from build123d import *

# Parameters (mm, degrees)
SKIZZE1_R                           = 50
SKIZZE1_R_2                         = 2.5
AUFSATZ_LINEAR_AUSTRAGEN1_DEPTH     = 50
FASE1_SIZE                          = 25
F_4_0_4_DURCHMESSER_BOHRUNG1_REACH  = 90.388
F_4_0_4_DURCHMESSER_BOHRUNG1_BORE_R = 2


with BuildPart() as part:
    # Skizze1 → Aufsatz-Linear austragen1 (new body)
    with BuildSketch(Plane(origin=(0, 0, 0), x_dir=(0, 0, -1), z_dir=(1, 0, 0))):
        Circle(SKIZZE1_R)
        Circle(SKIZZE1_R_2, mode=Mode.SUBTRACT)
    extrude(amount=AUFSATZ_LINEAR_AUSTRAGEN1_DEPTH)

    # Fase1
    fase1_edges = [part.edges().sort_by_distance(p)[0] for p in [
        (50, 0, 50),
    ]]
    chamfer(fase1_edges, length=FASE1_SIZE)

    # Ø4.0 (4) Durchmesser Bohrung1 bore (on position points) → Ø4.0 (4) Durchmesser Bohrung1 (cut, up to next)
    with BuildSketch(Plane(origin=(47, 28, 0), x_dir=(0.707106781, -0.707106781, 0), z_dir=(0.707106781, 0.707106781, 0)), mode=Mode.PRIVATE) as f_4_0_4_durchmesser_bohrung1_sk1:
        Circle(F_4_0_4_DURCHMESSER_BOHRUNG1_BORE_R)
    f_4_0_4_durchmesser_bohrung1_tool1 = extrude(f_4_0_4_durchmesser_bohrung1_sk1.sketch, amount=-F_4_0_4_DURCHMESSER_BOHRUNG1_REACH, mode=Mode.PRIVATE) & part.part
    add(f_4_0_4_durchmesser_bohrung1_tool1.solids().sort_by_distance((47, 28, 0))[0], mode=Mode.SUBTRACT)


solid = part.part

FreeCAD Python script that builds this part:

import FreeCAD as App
import Part
import Sketcher

V = App.Vector


def edges_at(feature, points):
    """Names of the edges that pass closest to the given points."""
    edges = feature.Shape.Edges
    near = lambda p: min(range(len(edges)), key=lambda i: edges[i].distToShape(Part.Vertex(*p))[0])
    return sorted({f"Edge{near(p) + 1}" for p in points})

doc = App.newDocument("Part")
params = doc.addObject("Spreadsheet::Sheet", "Params")
for row, (alias, value) in enumerate([
    ("sketch1_diameter", "100 mm"),
    ("sketch1_diameter2", "5 mm"),
    ("pad1_length", "50 mm"),
    ("chamfer_size", "25 mm"),
    ("sketch2_diameter", "4 mm"),
], start=1):
    params.set(f"A{row}", alias)
    params.set(f"B{row}", "=" + value)
    params.setAlias(f"B{row}", alias)

body = doc.addObject("PartDesign::Body", "Body")

sketch1 = body.newObject("Sketcher::SketchObject", "Sketch")
sketch1.AttachmentSupport = (doc.getObject("YZ_Plane"), [""])
sketch1.MapMode = "FlatFace"
sketch1.addGeometry(Part.Circle(V(0, 0, 0), V(0, 0, 1), 50), False)
sketch1.addGeometry(Part.Circle(V(0, 0, 0), V(0, 0, 1), 2.5), False)
sketch1.addConstraint(Sketcher.Constraint("Coincident", 0, 3, -1, 1))
sketch1.addConstraint(Sketcher.Constraint("Coincident", 1, 3, -1, 1))
sketch1.addConstraint(Sketcher.Constraint("Diameter", 0, 100.0))
sketch1.addConstraint(Sketcher.Constraint("Diameter", 1, 5.0))
sketch1.setExpression("Constraints[2]", "Params.sketch1_diameter")
sketch1.setExpression("Constraints[3]", "Params.sketch1_diameter2")
pad1 = body.newObject("PartDesign::Pad", "Pad")
pad1.Profile = sketch1
pad1.setExpression("Length", "Params.pad1_length")
doc.recompute()

chamfer = body.newObject("PartDesign::Chamfer", "Chamfer")
chamfer.Base = (pad1, edges_at(pad1, [(50, 0, 50)]))
chamfer.setExpression("Size", "Params.chamfer_size")

sketch2 = body.newObject("Sketcher::SketchObject", "Sketch001")
sketch2.Placement = App.Placement(V(47, 28, 0), App.Rotation(V(0.707106781, -0.707106781, 0), V(0, 0, -0.999999999), V(0.707106781, 0.707106781, 0), "ZXY"))
sketch2.addGeometry(Part.Circle(V(0, 0, 0), V(0, 0, 1), 2), False)
sketch2.addConstraint(Sketcher.Constraint("Coincident", 0, 3, -1, 1))
sketch2.addConstraint(Sketcher.Constraint("Diameter", 0, 4.0))
sketch2.setExpression("Constraints[1]", "Params.sketch2_diameter")
pocket1 = body.newObject("PartDesign::Pocket", "Pocket")
pocket1.Profile = sketch2
pocket1.Type = "UpToFirst"

doc.recompute()
